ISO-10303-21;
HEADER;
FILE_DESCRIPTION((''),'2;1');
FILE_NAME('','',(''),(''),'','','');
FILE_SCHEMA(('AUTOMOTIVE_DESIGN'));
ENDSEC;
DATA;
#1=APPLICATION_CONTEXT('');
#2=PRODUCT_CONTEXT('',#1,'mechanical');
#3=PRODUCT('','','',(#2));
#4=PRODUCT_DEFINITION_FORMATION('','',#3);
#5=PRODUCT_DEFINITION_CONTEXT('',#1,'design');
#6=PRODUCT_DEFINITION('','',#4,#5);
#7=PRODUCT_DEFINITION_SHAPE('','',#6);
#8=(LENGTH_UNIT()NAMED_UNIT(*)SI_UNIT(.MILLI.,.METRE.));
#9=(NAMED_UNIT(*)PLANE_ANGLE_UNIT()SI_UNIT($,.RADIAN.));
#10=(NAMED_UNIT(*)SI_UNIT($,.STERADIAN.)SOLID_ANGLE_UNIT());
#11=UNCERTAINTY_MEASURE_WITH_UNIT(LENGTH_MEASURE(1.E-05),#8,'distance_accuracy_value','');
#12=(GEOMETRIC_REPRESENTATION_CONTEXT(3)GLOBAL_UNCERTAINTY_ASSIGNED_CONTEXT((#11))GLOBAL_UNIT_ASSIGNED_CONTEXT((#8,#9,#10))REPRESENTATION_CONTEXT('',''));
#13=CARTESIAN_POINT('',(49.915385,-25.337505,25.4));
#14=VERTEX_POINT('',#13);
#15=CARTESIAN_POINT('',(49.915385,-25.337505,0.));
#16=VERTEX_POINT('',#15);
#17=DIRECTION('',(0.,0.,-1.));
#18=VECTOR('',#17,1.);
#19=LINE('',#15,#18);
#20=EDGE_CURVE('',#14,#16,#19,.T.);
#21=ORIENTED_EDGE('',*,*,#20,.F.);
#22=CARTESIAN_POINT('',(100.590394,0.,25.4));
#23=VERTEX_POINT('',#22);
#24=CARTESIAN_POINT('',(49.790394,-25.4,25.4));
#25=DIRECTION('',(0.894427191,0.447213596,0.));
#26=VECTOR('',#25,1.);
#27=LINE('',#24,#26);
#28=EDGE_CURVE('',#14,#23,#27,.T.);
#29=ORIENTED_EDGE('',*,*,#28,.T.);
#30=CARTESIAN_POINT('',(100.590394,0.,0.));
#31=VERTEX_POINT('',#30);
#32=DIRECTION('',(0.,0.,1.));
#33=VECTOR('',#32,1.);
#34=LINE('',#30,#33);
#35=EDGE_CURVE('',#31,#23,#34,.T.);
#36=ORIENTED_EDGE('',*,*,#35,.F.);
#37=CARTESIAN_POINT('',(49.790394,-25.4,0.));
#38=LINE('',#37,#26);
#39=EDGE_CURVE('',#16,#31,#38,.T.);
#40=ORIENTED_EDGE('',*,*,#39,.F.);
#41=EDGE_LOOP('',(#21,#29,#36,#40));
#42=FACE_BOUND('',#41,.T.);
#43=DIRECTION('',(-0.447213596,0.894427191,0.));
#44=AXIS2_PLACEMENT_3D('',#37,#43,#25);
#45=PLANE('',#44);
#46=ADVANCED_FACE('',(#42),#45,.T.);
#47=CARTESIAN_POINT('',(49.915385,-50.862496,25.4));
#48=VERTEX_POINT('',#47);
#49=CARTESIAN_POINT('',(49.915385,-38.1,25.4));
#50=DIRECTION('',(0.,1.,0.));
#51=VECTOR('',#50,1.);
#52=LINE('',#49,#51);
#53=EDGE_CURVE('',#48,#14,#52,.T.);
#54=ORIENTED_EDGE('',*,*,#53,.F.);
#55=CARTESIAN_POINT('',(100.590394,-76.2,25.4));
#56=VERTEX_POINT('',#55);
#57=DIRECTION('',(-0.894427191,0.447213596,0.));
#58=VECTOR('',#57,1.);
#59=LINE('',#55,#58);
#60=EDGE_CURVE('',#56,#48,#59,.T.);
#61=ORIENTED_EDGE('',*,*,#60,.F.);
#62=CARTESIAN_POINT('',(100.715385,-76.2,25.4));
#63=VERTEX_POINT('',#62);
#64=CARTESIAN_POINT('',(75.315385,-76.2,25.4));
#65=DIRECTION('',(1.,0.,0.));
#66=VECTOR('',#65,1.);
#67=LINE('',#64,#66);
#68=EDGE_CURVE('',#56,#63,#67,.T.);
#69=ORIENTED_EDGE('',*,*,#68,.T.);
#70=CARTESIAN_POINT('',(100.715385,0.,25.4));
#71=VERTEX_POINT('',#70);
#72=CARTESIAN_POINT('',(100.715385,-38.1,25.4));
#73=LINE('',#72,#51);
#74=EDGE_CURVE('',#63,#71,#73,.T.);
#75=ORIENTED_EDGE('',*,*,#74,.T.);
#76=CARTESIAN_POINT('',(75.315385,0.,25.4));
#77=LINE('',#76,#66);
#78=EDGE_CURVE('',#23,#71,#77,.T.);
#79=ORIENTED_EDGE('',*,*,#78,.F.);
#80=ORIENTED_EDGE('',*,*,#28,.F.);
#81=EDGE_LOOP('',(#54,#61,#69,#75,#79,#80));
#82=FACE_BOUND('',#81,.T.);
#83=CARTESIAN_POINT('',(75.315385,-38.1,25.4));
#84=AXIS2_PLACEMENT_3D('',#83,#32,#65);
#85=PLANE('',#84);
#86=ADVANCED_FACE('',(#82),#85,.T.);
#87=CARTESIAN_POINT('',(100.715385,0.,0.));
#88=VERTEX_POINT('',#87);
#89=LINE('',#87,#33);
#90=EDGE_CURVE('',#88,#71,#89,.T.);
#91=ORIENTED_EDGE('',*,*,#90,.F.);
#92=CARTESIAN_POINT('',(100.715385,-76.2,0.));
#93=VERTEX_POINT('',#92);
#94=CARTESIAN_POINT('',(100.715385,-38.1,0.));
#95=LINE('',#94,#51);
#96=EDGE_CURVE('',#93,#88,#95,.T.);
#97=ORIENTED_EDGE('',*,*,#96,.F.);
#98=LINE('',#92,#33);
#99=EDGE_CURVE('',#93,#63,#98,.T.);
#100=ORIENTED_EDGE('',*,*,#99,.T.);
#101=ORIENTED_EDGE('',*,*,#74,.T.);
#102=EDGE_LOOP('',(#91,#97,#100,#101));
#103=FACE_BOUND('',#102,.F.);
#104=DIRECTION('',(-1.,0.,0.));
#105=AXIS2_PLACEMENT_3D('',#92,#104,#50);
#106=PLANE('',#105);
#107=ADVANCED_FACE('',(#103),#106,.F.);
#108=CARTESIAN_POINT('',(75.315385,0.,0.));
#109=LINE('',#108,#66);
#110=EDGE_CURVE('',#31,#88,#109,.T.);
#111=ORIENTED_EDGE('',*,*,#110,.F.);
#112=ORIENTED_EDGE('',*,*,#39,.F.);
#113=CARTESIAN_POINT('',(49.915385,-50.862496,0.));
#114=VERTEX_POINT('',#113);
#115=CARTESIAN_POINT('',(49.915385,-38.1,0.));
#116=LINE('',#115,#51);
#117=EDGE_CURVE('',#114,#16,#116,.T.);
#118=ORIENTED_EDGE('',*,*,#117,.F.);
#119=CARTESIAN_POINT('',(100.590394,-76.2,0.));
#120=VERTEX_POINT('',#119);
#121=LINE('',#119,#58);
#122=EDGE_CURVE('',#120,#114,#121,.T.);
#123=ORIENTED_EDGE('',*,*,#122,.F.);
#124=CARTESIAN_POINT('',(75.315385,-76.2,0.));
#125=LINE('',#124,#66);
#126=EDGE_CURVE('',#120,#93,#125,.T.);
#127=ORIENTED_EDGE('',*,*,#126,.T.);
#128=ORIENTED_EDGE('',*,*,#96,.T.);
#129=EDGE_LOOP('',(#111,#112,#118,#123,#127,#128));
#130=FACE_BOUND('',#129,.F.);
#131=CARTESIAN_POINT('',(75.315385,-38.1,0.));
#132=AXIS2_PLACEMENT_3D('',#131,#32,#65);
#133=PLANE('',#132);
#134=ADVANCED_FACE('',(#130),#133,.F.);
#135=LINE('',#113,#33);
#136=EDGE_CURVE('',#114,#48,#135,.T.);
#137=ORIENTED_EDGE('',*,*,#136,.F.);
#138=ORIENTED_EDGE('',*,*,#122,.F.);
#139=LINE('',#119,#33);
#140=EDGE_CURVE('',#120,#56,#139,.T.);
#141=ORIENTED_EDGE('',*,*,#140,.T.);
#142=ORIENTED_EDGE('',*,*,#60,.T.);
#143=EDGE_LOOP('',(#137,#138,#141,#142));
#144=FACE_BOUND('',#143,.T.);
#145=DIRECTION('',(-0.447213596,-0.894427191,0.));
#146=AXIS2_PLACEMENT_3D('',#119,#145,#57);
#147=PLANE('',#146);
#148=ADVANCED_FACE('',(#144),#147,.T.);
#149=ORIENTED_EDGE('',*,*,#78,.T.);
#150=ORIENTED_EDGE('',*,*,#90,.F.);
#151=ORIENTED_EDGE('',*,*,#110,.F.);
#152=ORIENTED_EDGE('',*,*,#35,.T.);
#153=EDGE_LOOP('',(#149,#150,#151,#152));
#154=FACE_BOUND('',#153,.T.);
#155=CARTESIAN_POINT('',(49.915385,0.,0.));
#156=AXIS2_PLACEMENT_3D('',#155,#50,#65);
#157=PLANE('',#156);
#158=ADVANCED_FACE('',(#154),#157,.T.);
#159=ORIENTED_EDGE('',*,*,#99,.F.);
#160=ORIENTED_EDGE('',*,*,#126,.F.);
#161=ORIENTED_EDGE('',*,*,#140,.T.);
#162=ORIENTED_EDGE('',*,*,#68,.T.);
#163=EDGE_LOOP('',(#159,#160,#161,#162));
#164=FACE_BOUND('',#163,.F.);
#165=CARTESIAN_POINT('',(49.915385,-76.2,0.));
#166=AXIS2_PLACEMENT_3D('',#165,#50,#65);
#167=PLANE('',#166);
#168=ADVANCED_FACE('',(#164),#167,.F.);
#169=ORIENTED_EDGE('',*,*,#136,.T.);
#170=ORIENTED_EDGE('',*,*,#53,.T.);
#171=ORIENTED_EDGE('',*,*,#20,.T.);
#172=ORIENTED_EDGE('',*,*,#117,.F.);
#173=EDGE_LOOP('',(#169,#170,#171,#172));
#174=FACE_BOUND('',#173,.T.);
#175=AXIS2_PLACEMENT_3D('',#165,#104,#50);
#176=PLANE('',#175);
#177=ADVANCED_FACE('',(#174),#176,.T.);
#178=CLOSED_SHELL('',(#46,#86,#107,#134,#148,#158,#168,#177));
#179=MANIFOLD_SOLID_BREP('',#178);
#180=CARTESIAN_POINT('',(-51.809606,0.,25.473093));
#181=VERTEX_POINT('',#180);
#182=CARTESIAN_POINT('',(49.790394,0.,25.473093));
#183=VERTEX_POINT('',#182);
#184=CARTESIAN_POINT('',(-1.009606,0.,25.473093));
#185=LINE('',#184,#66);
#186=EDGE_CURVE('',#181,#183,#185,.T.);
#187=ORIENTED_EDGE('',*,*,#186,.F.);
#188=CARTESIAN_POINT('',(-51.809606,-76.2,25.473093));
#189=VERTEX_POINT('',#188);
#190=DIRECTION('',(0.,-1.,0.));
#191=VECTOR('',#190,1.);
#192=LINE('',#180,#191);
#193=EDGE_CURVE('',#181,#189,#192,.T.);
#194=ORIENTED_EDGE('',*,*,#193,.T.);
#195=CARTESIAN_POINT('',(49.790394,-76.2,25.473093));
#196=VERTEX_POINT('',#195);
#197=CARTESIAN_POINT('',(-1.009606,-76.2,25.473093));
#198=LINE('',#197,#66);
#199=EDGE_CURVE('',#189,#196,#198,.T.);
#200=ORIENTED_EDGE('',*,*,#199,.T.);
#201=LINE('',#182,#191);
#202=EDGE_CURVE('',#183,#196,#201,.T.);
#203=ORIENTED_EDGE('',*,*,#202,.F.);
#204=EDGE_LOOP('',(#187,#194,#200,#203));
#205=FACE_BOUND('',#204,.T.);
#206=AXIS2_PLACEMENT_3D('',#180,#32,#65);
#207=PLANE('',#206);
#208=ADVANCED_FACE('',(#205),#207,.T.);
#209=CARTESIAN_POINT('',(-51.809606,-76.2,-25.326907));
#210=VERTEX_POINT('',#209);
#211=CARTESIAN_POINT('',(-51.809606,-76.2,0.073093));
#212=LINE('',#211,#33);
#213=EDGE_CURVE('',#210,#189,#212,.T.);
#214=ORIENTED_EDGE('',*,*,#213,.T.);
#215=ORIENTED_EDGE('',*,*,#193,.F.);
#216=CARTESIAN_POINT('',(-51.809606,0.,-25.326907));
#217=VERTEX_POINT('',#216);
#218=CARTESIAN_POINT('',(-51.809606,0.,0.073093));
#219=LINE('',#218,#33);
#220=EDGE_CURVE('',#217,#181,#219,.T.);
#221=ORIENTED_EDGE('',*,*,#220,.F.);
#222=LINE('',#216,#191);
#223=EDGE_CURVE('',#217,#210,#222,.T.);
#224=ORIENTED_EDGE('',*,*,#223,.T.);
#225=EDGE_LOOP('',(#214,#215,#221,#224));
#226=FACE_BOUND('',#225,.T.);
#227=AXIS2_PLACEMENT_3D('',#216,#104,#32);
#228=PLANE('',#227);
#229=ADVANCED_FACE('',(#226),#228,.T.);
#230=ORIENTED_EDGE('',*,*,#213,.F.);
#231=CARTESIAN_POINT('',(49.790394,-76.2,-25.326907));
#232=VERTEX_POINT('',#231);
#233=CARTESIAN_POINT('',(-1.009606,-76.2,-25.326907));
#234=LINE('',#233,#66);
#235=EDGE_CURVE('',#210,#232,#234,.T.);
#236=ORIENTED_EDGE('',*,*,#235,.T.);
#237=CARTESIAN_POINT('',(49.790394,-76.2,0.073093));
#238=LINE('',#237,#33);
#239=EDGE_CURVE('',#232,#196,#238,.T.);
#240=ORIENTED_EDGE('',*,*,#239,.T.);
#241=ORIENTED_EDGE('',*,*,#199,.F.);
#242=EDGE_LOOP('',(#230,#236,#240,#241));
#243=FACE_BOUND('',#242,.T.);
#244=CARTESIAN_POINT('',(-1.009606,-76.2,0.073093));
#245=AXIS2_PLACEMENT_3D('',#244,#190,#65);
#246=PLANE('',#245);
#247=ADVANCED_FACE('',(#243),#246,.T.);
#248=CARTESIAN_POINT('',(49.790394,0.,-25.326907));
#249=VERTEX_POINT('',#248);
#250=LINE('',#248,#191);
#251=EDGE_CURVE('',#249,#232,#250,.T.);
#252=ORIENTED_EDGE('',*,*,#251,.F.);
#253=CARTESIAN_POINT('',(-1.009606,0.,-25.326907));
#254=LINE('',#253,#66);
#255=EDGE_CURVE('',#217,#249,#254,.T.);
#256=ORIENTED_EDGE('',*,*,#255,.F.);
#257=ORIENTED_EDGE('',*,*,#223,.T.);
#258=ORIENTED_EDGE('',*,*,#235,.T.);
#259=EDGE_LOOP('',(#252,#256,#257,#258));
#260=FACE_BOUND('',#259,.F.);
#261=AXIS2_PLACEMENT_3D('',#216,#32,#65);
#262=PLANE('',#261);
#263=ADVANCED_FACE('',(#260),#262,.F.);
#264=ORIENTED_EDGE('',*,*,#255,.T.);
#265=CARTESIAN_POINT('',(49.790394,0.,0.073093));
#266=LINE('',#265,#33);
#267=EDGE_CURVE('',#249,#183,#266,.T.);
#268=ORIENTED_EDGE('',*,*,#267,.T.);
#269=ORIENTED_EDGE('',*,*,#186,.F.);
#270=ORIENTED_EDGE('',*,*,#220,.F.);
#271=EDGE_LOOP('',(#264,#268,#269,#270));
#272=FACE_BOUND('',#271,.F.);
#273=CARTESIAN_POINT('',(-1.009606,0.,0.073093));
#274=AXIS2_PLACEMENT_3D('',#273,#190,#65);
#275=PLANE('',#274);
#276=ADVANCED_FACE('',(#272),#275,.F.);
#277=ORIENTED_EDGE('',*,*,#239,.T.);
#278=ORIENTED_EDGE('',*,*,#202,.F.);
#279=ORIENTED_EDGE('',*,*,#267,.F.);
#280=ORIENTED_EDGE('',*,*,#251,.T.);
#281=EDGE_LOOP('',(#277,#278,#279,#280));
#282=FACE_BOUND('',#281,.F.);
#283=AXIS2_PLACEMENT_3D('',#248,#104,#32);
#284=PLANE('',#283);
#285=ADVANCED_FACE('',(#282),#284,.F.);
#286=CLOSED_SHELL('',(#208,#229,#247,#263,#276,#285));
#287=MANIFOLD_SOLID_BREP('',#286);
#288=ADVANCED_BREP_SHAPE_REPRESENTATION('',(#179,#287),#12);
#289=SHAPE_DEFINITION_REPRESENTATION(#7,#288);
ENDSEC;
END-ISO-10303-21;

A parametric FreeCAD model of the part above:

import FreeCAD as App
import Part
import Sketcher
from FreeCAD import Vector
Q = App.Units.Quantity

doc = App.newDocument("Part")
body = doc.addObject("PartDesign::Body", "Body")

# Sketch on XZ plane
sketch1 = doc.addObject("Sketcher::SketchObject", "Sketch")
body.addObject(sketch1)
sketch1.AttachmentSupport = (doc.XZ_Plane, [""])
sketch1.MapMode = "FlatFace"
sketch1.addGeometry(Part.LineSegment(Vector(-52, 25, 0), Vector(-52, -25, 0)), False)
sketch1.addGeometry(Part.LineSegment(Vector(-52, -25, 0), Vector(50, -25, 0)), False)
sketch1.addGeometry(Part.LineSegment(Vector(50, -25, 0), Vector(50, 25, 0)), False)
sketch1.addGeometry(Part.LineSegment(Vector(50, 25, 0), Vector(-52, 25, 0)), False)
sketch1.addConstraint(Sketcher.Constraint("Coincident", 0, 2, 1, 1))
sketch1.addConstraint(Sketcher.Constraint("Coincident", 1, 2, 2, 1))
sketch1.addConstraint(Sketcher.Constraint("Coincident", 2, 2, 3, 1))
sketch1.addConstraint(Sketcher.Constraint("Coincident", 3, 2, 0, 1))
sketch1.addConstraint(Sketcher.Constraint("Vertical", 0))
sketch1.addConstraint(Sketcher.Constraint("Horizontal", 1))
sketch1.addConstraint(Sketcher.Constraint("Vertical", 2))
sketch1.addConstraint(Sketcher.Constraint("Horizontal", 3))
sketch1.addConstraint(Sketcher.Constraint("DistanceX", 1, 1, 1, 2, Q("4 in")))
sketch1.addConstraint(Sketcher.Constraint("DistanceY", 0, 2, 0, 1, Q("2 in")))
sketch1.addConstraint(Sketcher.Constraint("DistanceX", 0, 2, -1, 1, Q("51.809606 mm")))
sketch1.addConstraint(Sketcher.Constraint("DistanceY", 0, 2, -1, 1, Q("25.326907 mm")))
pad1 = doc.addObject("PartDesign::Pad", "Pad")
body.addObject(pad1)
pad1.Profile = sketch1
pad1.Length = Q("3 in")
body2 = doc.addObject("PartDesign::Body", "Body001")

# Sketch on XY plane
sketch2 = doc.addObject("Sketcher::SketchObject", "Sketch001")
body2.addObject(sketch2)
sketch2.AttachmentSupport = (doc.getObject("XY_Plane001"), [""])
sketch2.MapMode = "FlatFace"
sketch2.addGeometry(Part.LineSegment(Vector(50, 0, 0), Vector(50, -76, 0)), False)
sketch2.addGeometry(Part.LineSegment(Vector(50, -76, 0), Vector(101, -76, 0)), False)
sketch2.addGeometry(Part.LineSegment(Vector(101, -76, 0), Vector(101, 0, 0)), False)
sketch2.addGeometry(Part.LineSegment(Vector(101, 0, 0), Vector(50, 0, 0)), False)
sketch2.addConstraint(Sketcher.Constraint("Coincident", 0, 2, 1, 1))
sketch2.addConstraint(Sketcher.Constraint("Coincident", 1, 2, 2, 1))
sketch2.addConstraint(Sketcher.Constraint("Coincident", 2, 2, 3, 1))
sketch2.addConstraint(Sketcher.Constraint("Coincident", 3, 2, 0, 1))
sketch2.addConstraint(Sketcher.Constraint("Vertical", 0))
sketch2.addConstraint(Sketcher.Constraint("Horizontal", 1))
sketch2.addConstraint(Sketcher.Constraint("Vertical", 2))
sketch2.addConstraint(Sketcher.Constraint("Horizontal", 3))
sketch2.addConstraint(Sketcher.Constraint("PointOnObject", 2, 2, -1))
sketch2.addConstraint(Sketcher.Constraint("DistanceX", 1, 1, 1, 2, Q("2 in")))
sketch2.addConstraint(Sketcher.Constraint("DistanceY", 0, 2, 0, 1, Q("3 in")))
sketch2.addConstraint(Sketcher.Constraint("DistanceX", -1, 1, 0, 2, Q("49.915385 mm")))
pad2 = doc.addObject("PartDesign::Pad", "Pad001")
body2.addObject(pad2)
pad2.Profile = sketch2
pad2.Length = Q("1 in")

# Sketch on XY plane
sketch3 = doc.addObject("Sketcher::SketchObject", "Sketch002")
body2.addObject(sketch3)
sketch3.AttachmentSupport = (doc.getObject("XY_Plane001"), [""])
sketch3.MapMode = "FlatFace"
sketch3.addGeometry(Part.LineSegment(Vector(50, -25, 0), Vector(101, 0, 0)), False)
sketch3.addGeometry(Part.LineSegment(Vector(101, 0, 0), Vector(50, 0, 0)), False)
sketch3.addGeometry(Part.LineSegment(Vector(50, 0, 0), Vector(50, -25, 0)), False)
sketch3.addGeometry(Part.LineSegment(Vector(50, -51, 0), Vector(50, -76, 0)), False)
sketch3.addGeometry(Part.LineSegment(Vector(50, -76, 0), Vector(101, -76, 0)), False)
sketch3.addGeometry(Part.LineSegment(Vector(101, -76, 0), Vector(50, -51, 0)), False)
sketch3.addConstraint(Sketcher.Constraint("Coincident", 0, 2, 1, 1))
sketch3.addConstraint(Sketcher.Constraint("Coincident", 1, 2, 2, 1))
sketch3.addConstraint(Sketcher.Constraint("Coincident", 2, 2, 0, 1))
sketch3.addConstraint(Sketcher.Constraint("Coincident", 3, 2, 4, 1))
sketch3.addConstraint(Sketcher.Constraint("Coincident", 4, 2, 5, 1))
sketch3.addConstraint(Sketcher.Constraint("Coincident", 5, 2, 3, 1))
sketch3.addConstraint(Sketcher.Constraint("Horizontal", 1))
sketch3.addConstraint(Sketcher.Constraint("Vertical", 2))
sketch3.addConstraint(Sketcher.Constraint("Vertical", 3))
sketch3.addConstraint(Sketcher.Constraint("Horizontal", 4))
sketch3.addConstraint(Sketcher.Constraint("PointOnObject", 0, 2, -1))
sketch3.addConstraint(Sketcher.Constraint("Vertical", 2, 2, 3, 2))
sketch3.addConstraint(Sketcher.Constraint("Vertical", 0, 2, 4, 2))
sketch3.addConstraint(Sketcher.Constraint("Equal", 2, 3))
sketch3.addConstraint(Sketcher.Constraint("DistanceX", 1, 2, 1, 1, Q("2 in")))
sketch3.addConstraint(Sketcher.Constraint("DistanceY", 2, 2, 2, 1, Q("1 in")))
sketch3.addConstraint(Sketcher.Constraint("DistanceY", 3, 2, -1, 1, Q("3 in")))
sketch3.addConstraint(Sketcher.Constraint("DistanceX", -1, 1, 0, 2, Q("100.590394 mm")))
pocket1 = doc.addObject("PartDesign::Pocket", "Pocket")
body2.addObject(pocket1)
pocket1.Profile = sketch3
pocket1.Type = "ThroughAll"
pocket1.Reversed = True

doc.recompute()
